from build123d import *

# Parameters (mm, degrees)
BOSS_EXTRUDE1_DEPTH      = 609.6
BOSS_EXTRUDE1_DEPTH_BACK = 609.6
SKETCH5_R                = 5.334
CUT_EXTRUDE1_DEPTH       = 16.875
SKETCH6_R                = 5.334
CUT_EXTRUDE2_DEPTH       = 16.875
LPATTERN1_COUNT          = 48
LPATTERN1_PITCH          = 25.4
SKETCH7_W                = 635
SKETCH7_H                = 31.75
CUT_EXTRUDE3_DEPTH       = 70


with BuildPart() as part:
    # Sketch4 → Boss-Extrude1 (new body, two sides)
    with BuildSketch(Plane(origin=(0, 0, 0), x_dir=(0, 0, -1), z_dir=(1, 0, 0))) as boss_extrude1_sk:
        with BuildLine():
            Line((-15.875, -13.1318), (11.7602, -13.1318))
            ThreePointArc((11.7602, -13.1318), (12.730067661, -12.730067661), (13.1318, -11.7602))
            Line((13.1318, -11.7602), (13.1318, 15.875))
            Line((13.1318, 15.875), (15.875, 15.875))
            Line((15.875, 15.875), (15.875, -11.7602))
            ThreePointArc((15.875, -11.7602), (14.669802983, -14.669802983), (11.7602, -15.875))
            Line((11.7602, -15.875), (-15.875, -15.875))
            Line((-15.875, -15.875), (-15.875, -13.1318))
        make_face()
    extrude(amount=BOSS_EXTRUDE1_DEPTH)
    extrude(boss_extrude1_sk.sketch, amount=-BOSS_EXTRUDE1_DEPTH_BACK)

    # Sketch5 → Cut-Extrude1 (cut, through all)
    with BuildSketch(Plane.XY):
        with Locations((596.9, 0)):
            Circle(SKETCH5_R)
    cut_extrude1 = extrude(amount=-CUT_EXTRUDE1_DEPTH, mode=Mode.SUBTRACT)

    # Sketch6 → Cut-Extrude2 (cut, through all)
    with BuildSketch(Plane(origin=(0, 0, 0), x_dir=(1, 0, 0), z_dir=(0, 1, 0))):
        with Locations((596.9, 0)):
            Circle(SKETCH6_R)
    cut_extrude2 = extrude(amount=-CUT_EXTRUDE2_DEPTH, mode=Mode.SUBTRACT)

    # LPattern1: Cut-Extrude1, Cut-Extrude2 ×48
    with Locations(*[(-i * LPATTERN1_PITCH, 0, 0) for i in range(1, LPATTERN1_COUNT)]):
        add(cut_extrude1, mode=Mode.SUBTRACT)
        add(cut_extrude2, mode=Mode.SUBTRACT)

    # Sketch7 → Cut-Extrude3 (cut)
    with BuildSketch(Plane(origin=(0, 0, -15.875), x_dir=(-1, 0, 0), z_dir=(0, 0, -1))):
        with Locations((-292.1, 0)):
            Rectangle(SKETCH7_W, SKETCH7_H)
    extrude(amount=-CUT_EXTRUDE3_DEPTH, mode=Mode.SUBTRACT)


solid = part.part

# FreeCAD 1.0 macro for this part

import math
import FreeCAD as App
import Part
import Sketcher

V = App.Vector
Q = App.Units.Quantity


def add_polygon(sketch, points):
    """Adds a closed chain of lines whose ends are joined by coincident constraints."""
    first, n = sketch.GeometryCount, len(points)
    for a, b in zip(points, points[1:] + points[:1]):
        sketch.addGeometry(Part.LineSegment(App.Vector(*a, 0), App.Vector(*b, 0)), False)
    for i in range(n):
        sketch.addConstraint(Sketcher.Constraint("Coincident", first + i, 2, first + (i + 1) % n, 1))

doc = App.newDocument("Part")
params = doc.addObject("Spreadsheet::Sheet", "Params")
for row, (alias, value) in enumerate([
    ("sketch1_radius", "0.162 in"),
    ("sketch1_radius2", "0.054 in"),
    ("sketch1_width", "1.088 in"),
    ("pad1_length", "24 in"),
    ("pad1_length2", "24 in"),
    ("sketch2_diameter", "0.42 in"),
    ("sketch3_diameter", "0.42 in"),
    ("linearpattern_pitch", "1 in"),
    ("sketch4_width", "25 in"),
    ("sketch4_height", "1.25 in"),
    ("pocket3_length", "70 mm"),
], start=1):
    params.set(f"A{row}", alias)
    params.set(f"B{row}", "=" + value)
    params.setAlias(f"B{row}", alias)

body = doc.addObject("PartDesign::Body", "Body")

sketch1 = body.newObject("Sketcher::SketchObject", "Sketch")
sketch1.AttachmentSupport = (doc.getObject("YZ_Plane"), [""])
sketch1.MapMode = "FlatFace"
sketch1.addGeometry([
    Part.LineSegment(V(-13.1, -11.8, 0), V(-13.1, 15.9, 0)),
    Part.LineSegment(V(-13.1, 15.9, 0), V(-15.9, 15.9, 0)),
    Part.LineSegment(V(-15.9, 15.9, 0), V(-15.9, -11.8, 0)),
    Part.ArcOfCircle(Part.Circle(V(-11.8, -11.8, 0), V(0, 0, 1), 4.1), math.radians(-180), math.radians(-90)),
    Part.LineSegment(V(-11.8, -15.9, 0), V(15.9, -15.9, 0)),
    Part.LineSegment(V(15.9, -15.9, 0), V(15.9, -13.1, 0)),
    Part.LineSegment(V(15.9, -13.1, 0), V(-11.8, -13.1, 0)),
    Part.ArcOfCircle(Part.Circle(V(-11.8, -11.8, 0), V(0, 0, 1), 1.4), math.radians(180), math.radians(270)),
], False)
sketch1.addConstraint([
    Sketcher.Constraint("Coincident", 0, 2, 1, 1),
    Sketcher.Constraint("Coincident", 1, 2, 2, 1),
    Sketcher.Constraint("Tangent", 2, 2, 3, 1),
    Sketcher.Constraint("Tangent", 3, 2, 4, 1),
    Sketcher.Constraint("Coincident", 4, 2, 5, 1),
    Sketcher.Constraint("Coincident", 5, 2, 6, 1),
    Sketcher.Constraint("Tangent", 6, 2, 7, 2),
    Sketcher.Constraint("Tangent", 7, 1, 0, 1),
    Sketcher.Constraint("Vertical", 0),
    Sketcher.Constraint("Horizontal", 1),
    Sketcher.Constraint("Vertical", 2),
    Sketcher.Constraint("Horizontal", 4),
    Sketcher.Constraint("Vertical", 5),
    Sketcher.Constraint("Horizontal", 6),
    Sketcher.Constraint("Coincident", 7, 3, 3, 3),
    Sketcher.Constraint("Symmetric", 1, 2, 4, 2, -1, 1),
    Sketcher.Constraint("Equal", 6, 0),
    Sketcher.Constraint("Radius", 3, Q("0.162 in")),
    Sketcher.Constraint("Radius", 7, Q("0.054 in")),
    Sketcher.Constraint("DistanceX", 4, 1, 4, 2, Q("1.088 in")),
])
sketch1.setExpression("Constraints[17]", "Params.sketch1_radius")
sketch1.setExpression("Constraints[18]", "Params.sketch1_radius2")
sketch1.setExpression("Constraints[19]", "Params.sketch1_width")
pad1 = body.newObject("PartDesign::Pad", "Pad")
pad1.Profile = sketch1
pad1.Type = "TwoLengths"
pad1.setExpression("Length", "Params.pad1_length")
pad1.setExpression("Length2", "Params.pad1_length2")

sketch2 = body.newObject("Sketcher::SketchObject", "Sketch001")
sketch2.AttachmentSupport = (doc.getObject("XY_Plane"), [""])
sketch2.MapMode = "FlatFace"
sketch2.addGeometry(Part.Circle(V(597, 0, 0), V(0, 0, 1), 5), False)
sketch2.addConstraint([
    Sketcher.Constraint("PointOnObject", 0, 3, -1),
    Sketcher.Constraint("Diameter", 0, Q("0.42 in")),
    Sketcher.Constraint("DistanceX", -1, 1, 0, 3, Q("23.5 in")),
])
sketch2.setExpression("Constraints[1]", "Params.sketch2_diameter")
pocket1 = body.newObject("PartDesign::Pocket", "Pocket")
pocket1.Profile = sketch2
pocket1.Type = "ThroughAll"

sketch3 = body.newObject("Sketcher::SketchObject", "Sketch002")
sketch3.AttachmentSupport = (doc.getObject("XZ_Plane"), [""])
sketch3.MapMode = "FlatFace"
sketch3.addGeometry(Part.Circle(V(597, 0, 0), V(0, 0, 1), 5), False)
sketch3.addConstraint([
    Sketcher.Constraint("PointOnObject", 0, 3, -1),
    Sketcher.Constraint("Diameter", 0, Q("0.42 in")),
    Sketcher.Constraint("DistanceX", -1, 1, 0, 3, Q("23.5 in")),
])
sketch3.setExpression("Constraints[1]", "Params.sketch3_diameter")
pocket2 = body.newObject("PartDesign::Pocket", "Pocket001")
pocket2.Profile = sketch3
pocket2.Type = "ThroughAll"
pocket2.Reversed = True
doc.recompute()

linearpattern = body.newObject("PartDesign::LinearPattern", "LinearPattern")
linearpattern.Originals = [pocket1, pocket2]
linearpattern.Direction = (doc.getObject("X_Axis"), [""])
linearpattern.Mode = "offset"
linearpattern.setExpression("Offset", "Params.linearpattern_pitch")
linearpattern.Occurrences = 48
linearpattern.Reversed = True
body.Tip = linearpattern

sketch4 = body.newObject("Sketcher::SketchObject", "Sketch003")
sketch4.AttachmentSupport = (doc.getObject("XY_Plane"), [""])
sketch4.MapMode = "FlatFace"
sketch4.AttachmentOffset = App.Placement(V(0, 0, -0.625 * 25.4), App.Rotation())
add_polygon(sketch4, [(610, 16), (610, -16), (-25, -16), (-25, 16)])
sketch4.addConstraint([
    Sketcher.Constraint("Vertical", 0),
    Sketcher.Constraint("Horizontal", 1),
    Sketcher.Constraint("Vertical", 2),
    Sketcher.Constraint("Horizontal", 3),
    Sketcher.Constraint("DistanceX", 1, 2, 1, 1, Q("25 in")),
    Sketcher.Constraint("DistanceX", -1, 1, 0, 2, Q("24 in")),
    Sketcher.Constraint("DistanceY", 0, 2, 0, 1, Q("1.25 in")),
    Sketcher.Constraint("DistanceY", 0, 2, -1, 1, Q("0.625 in")),
])
sketch4.setExpression("Constraints[8]", "Params.sketch4_width")
sketch4.setExpression("Constraints[10]", "Params.sketch4_height")
pocket3 = body.newObject("PartDesign::Pocket", "Pocket002")
pocket3.Profile = sketch4
pocket3.setExpression("Length", "Params.pocket3_length")
pocket3.Reversed = True

doc.recompute()
